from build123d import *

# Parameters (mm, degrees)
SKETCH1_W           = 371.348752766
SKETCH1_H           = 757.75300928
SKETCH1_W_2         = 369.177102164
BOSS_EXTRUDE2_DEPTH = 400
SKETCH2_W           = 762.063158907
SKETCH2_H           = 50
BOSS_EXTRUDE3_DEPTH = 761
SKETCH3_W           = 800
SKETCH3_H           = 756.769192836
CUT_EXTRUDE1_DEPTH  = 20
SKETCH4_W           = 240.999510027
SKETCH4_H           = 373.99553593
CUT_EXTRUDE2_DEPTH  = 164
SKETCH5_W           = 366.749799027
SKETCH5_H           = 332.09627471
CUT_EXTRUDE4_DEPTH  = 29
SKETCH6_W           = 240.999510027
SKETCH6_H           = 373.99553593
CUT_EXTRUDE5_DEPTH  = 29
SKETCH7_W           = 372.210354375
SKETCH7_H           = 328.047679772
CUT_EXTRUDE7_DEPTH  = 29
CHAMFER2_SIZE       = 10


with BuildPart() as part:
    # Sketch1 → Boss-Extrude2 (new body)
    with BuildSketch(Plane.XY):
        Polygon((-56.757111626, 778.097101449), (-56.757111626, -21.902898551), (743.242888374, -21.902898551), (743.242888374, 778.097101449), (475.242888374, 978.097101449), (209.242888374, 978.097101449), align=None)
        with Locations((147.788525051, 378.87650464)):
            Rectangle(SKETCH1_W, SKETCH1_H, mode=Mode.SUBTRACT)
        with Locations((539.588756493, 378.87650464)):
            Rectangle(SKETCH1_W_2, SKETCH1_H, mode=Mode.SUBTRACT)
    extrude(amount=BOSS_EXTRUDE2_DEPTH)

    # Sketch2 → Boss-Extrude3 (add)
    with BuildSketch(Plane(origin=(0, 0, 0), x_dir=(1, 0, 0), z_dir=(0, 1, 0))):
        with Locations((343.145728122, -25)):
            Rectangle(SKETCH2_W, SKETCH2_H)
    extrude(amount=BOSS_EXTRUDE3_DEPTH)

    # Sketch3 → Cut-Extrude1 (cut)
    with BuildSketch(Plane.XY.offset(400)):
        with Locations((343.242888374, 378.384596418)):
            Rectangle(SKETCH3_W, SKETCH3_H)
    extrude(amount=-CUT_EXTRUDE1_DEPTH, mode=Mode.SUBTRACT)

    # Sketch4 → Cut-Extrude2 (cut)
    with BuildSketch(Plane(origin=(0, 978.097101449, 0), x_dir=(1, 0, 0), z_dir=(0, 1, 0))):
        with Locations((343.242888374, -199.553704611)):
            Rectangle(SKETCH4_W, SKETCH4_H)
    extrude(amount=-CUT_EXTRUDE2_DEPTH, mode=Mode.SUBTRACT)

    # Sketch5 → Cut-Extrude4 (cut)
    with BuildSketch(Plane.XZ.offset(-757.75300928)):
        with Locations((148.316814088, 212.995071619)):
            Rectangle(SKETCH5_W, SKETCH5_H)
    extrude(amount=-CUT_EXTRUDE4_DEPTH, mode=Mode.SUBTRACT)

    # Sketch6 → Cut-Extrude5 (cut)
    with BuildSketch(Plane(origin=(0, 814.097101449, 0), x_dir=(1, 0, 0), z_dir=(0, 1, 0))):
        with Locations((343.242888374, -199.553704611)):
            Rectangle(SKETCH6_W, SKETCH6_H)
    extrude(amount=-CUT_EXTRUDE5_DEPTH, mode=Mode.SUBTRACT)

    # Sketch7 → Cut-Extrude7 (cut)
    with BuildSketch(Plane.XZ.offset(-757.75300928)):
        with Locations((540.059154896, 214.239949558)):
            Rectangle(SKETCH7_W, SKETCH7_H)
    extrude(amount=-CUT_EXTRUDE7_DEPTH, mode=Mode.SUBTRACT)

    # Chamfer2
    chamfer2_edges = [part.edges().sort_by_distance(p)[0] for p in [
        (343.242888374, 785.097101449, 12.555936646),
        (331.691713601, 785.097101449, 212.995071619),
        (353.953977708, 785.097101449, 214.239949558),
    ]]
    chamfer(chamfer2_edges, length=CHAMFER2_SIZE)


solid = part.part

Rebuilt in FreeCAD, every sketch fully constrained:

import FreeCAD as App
import Part
import Sketcher


def edges_at(feature, points):
    """Names of the edges that pass closest to the given points."""
    edges = feature.Shape.Edges
    near = lambda p: min(range(len(edges)), key=lambda i: edges[i].distToShape(Part.Vertex(*p))[0])
    return sorted({f"Edge{near(p) + 1}" for p in points})

doc = App.newDocument("Part")
params = doc.addObject("Spreadsheet::Sheet", "Params")
for row, (alias, value) in enumerate([
    ("sketch1_width", "800 mm"),
    ("sketch1_width2", "266 mm"),
    ("pad1_length", "400 mm"),
    ("sketch2_height", "50 mm"),
    ("pad2_length", "761 mm"),
    ("sketch3_width", "800 mm"),
    ("pocket1_length", "20 mm"),
    ("pocket2_length", "164 mm"),
    ("pocket3_length", "29 mm"),
    ("pocket4_length", "29 mm"),
    ("pocket5_length", "29 mm"),
    ("chamfer_size", "10 mm"),
], start=1):
    params.set(f"A{row}", alias)
    params.set(f"B{row}", "=" + value)
    params.setAlias(f"B{row}", alias)

body = doc.addObject("PartDesign::Body", "Body")

# Sketch on XY plane
sketch1 = doc.addObject("Sketcher::SketchObject", "Sketch")
body.addObject(sketch1)
sketch1.AttachmentSupport = (doc.XY_Plane, [""])
sketch1.MapMode = "FlatFace"
sketch1.addGeometry(Part.LineSegment(App.Vector(-56.757112, 778.097101, 0), App.Vector(-56.757112, -21.902899, 0)), False)
sketch1.addGeometry(Part.LineSegment(App.Vector(-56.757112, -21.902899, 0), App.Vector(743.242888, -21.902899, 0)), False)
sketch1.addGeometry(Part.LineSegment(App.Vector(743.242888, -21.902899, 0), App.Vector(743.242888, 778.097101, 0)), False)
sketch1.addGeometry(Part.LineSegment(App.Vector(743.242888, 778.097101, 0), App.Vector(475.242888, 978.097101, 0)), False)
sketch1.addGeometry(Part.LineSegment(App.Vector(475.242888, 978.097101, 0), App.Vector(209.242888, 978.097101, 0)), False)
sketch1.addGeometry(Part.LineSegment(App.Vector(209.242888, 978.097101, 0), App.Vector(-56.757112, 778.097101, 0)), False)
sketch1.addGeometry(Part.LineSegment(App.Vector(333.462901, 0, 0), App.Vector(-37.885851, 0, 0)), False)
sketch1.addGeometry(Part.LineSegment(App.Vector(-37.885851, 0, 0), App.Vector(-37.885851, 757.753009, 0)), False)
sketch1.addGeometry(Part.LineSegment(App.Vector(-37.885851, 757.753009, 0), App.Vector(333.462901, 757.753009, 0)), False)
sketch1.addGeometry(Part.LineSegment(App.Vector(333.462901, 757.753009, 0), App.Vector(333.462901, 0, 0)), False)
sketch1.addGeometry(Part.LineSegment(App.Vector(724.177308, 0, 0), App.Vector(355.000205, 0, 0)), False)
sketch1.addGeometry(Part.LineSegment(App.Vector(355.000205, 0, 0), App.Vector(355.000205, 757.753009, 0)), False)
sketch1.addGeometry(Part.LineSegment(App.Vector(355.000205, 757.753009, 0), App.Vector(724.177308, 757.753009, 0)), False)
sketch1.addGeometry(Part.LineSegment(App.Vector(724.177308, 757.753009, 0), App.Vector(724.177308, 0, 0)), False)
sketch1.addConstraint(Sketcher.Constraint("Coincident", 0, 2, 1, 1))
sketch1.addConstraint(Sketcher.Constraint("Coincident", 1, 2, 2, 1))
sketch1.addConstraint(Sketcher.Constraint("Coincident", 2, 2, 3, 1))
sketch1.addConstraint(Sketcher.Constraint("Coincident", 3, 2, 4, 1))
sketch1.addConstraint(Sketcher.Constraint("Coincident", 4, 2, 5, 1))
sketch1.addConstraint(Sketcher.Constraint("Coincident", 5, 2, 0, 1))
sketch1.addConstraint(Sketcher.Constraint("Coincident", 6, 2, 7, 1))
sketch1.addConstraint(Sketcher.Constraint("Coincident", 7, 2, 8, 1))
sketch1.addConstraint(Sketcher.Constraint("Coincident", 8, 2, 9, 1))
sketch1.addConstraint(Sketcher.Constraint("Coincident", 9, 2, 6, 1))
sketch1.addConstraint(Sketcher.Constraint("Coincident", 10, 2, 11, 1))
sketch1.addConstraint(Sketcher.Constraint("Coincident", 11, 2, 12, 1))
sketch1.addConstraint(Sketcher.Constraint("Coincident", 12, 2, 13, 1))
sketch1.addConstraint(Sketcher.Constraint("Coincident", 13, 2, 10, 1))
sketch1.addConstraint(Sketcher.Constraint("Vertical", 0))
sketch1.addConstraint(Sketcher.Constraint("Horizontal", 1))
sketch1.addConstraint(Sketcher.Constraint("Vertical", 2))
sketch1.addConstraint(Sketcher.Constraint("Horizontal", 4))
sketch1.addConstraint(Sketcher.Constraint("Horizontal", 6))
sketch1.addConstraint(Sketcher.Constraint("Vertical", 7))
sketch1.addConstraint(Sketcher.Constraint("Horizontal", 8))
sketch1.addConstraint(Sketcher.Constraint("Vertical", 9))
sketch1.addConstraint(Sketcher.Constraint("Horizontal", 10))
sketch1.addConstraint(Sketcher.Constraint("Vertical", 11))
sketch1.addConstraint(Sketcher.Constraint("Horizontal", 12))
sketch1.addConstraint(Sketcher.Constraint("Vertical", 13))
sketch1.addConstraint(Sketcher.Constraint("PointOnObject", 6, 2, -1))
sketch1.addConstraint(Sketcher.Constraint("PointOnObject", 10, 2, -1))
sketch1.addConstraint(Sketcher.Constraint("Horizontal", 2, 2, 5, 2))
sketch1.addConstraint(Sketcher.Constraint("Horizontal", 8, 2, 11, 2))
sketch1.addConstraint(Sketcher.Constraint("Equal", 1, 0))
sketch1.addConstraint(Sketcher.Constraint("DistanceX", 1, 1, 1, 2, 800.0))
sketch1.addConstraint(Sketcher.Constraint("DistanceX", 4, 2, 4, 1, 266.0))
sketch1.addConstraint(Sketcher.Constraint("DistanceX", 3, 2, 2, 2, 268.0))
sketch1.addConstraint(Sketcher.Constraint("DistanceY", 2, 2, 3, 2, 200.0))
sketch1.addConstraint(Sketcher.Constraint("DistanceY", 7, 1, 7, 2, 757.753009))
sketch1.addConstraint(Sketcher.Constraint("DistanceY", 0, 2, -1, 1, 21.902899))
sketch1.addConstraint(Sketcher.Constraint("DistanceX", -1, 1, 8, 2, 333.462901))
sketch1.addConstraint(Sketcher.Constraint("DistanceX", 6, 2, 6, 1, 371.348753))
sketch1.addConstraint(Sketcher.Constraint("DistanceX", 10, 2, 10, 1, 369.177102))
sketch1.addConstraint(Sketcher.Constraint("DistanceX", 0, 2, -1, 1, 56.757112))
sketch1.addConstraint(Sketcher.Constraint("DistanceX", 12, 2, 2, 2, 19.065581))
sketch1.setExpression("Constraints[31]", "Params.sketch1_width")
sketch1.setExpression("Constraints[32]", "Params.sketch1_width2")
pad1 = doc.addObject("PartDesign::Pad", "Pad")
body.addObject(pad1)
pad1.Profile = sketch1
pad1.setExpression("Length", "Params.pad1_length")

# Sketch on XZ plane
sketch2 = doc.addObject("Sketcher::SketchObject", "Sketch001")
body.addObject(sketch2)
sketch2.AttachmentSupport = (doc.XZ_Plane, [""])
sketch2.MapMode = "FlatFace"
sketch2.addGeometry(Part.LineSegment(App.Vector(-37.885851, 0, 0), App.Vector(-37.885851, 50, 0)), False)
sketch2.addGeometry(Part.LineSegment(App.Vector(-37.885851, 50, 0), App.Vector(724.177308, 50, 0)), False)
sketch2.addGeometry(Part.LineSegment(App.Vector(724.177308, 50, 0), App.Vector(724.177308, 0, 0)), False)
sketch2.addGeometry(Part.LineSegment(App.Vector(724.177308, 0, 0), App.Vector(-37.885851, 0, 0)), False)
sketch2.addConstraint(Sketcher.Constraint("Coincident", 0, 2, 1, 1))
sketch2.addConstraint(Sketcher.Constraint("Coincident", 1, 2, 2, 1))
sketch2.addConstraint(Sketcher.Constraint("Coincident", 2, 2, 3, 1))
sketch2.addConstraint(Sketcher.Constraint("Coincident", 3, 2, 0, 1))
sketch2.addConstraint(Sketcher.Constraint("Vertical", 0))
sketch2.addConstraint(Sketcher.Constraint("Horizontal", 1))
sketch2.addConstraint(Sketcher.Constraint("Vertical", 2))
sketch2.addConstraint(Sketcher.Constraint("Horizontal", 3))
sketch2.addConstraint(Sketcher.Constraint("PointOnObject", 2, 2, -1))
sketch2.addConstraint(Sketcher.Constraint("DistanceY", 0, 1, 0, 2, 50.0))
sketch2.addConstraint(Sketcher.Constraint("DistanceX", 1, 1, 1, 2, 762.063159))
sketch2.addConstraint(Sketcher.Constraint("DistanceX", 0, 2, -1, 1, 37.885851))
sketch2.setExpression("Constraints[9]", "Params.sketch2_height")
pad2 = doc.addObject("PartDesign::Pad", "Pad001")
body.addObject(pad2)
pad2.Profile = sketch2
pad2.setExpression("Length", "Params.pad2_length")
pad2.Reversed = True

# Sketch on XY plane
sketch3 = doc.addObject("Sketcher::SketchObject", "Sketch002")
body.addObject(sketch3)
sketch3.AttachmentSupport = (doc.XY_Plane, [""])
sketch3.MapMode = "FlatFace"
sketch3.AttachmentOffset = App.Placement(App.Vector(0, 0, 400), App.Rotation())
sketch3.addGeometry(Part.LineSegment(App.Vector(-56.757112, 756.769193, 0), App.Vector(-56.757112, 0, 0)), False)
sketch3.addGeometry(Part.LineSegment(App.Vector(-56.757112, 0, 0), App.Vector(743.242888, 0, 0)), False)
sketch3.addGeometry(Part.LineSegment(App.Vector(743.242888, 0, 0), App.Vector(743.242888, 756.769193, 0)), False)
sketch3.addGeometry(Part.LineSegment(App.Vector(743.242888, 756.769193, 0), App.Vector(-56.757112, 756.769193, 0)), False)
sketch3.addConstraint(Sketcher.Constraint("Coincident", 0, 2, 1, 1))
sketch3.addConstraint(Sketcher.Constraint("Coincident", 1, 2, 2, 1))
sketch3.addConstraint(Sketcher.Constraint("Coincident", 2, 2, 3, 1))
sketch3.addConstraint(Sketcher.Constraint("Coincident", 3, 2, 0, 1))
sketch3.addConstraint(Sketcher.Constraint("Vertical", 0))
sketch3.addConstraint(Sketcher.Constraint("Horizontal", 1))
sketch3.addConstraint(Sketcher.Constraint("Vertical", 2))
sketch3.addConstraint(Sketcher.Constraint("Horizontal", 3))
sketch3.addConstraint(Sketcher.Constraint("PointOnObject", 0, 2, -1))
sketch3.addConstraint(Sketcher.Constraint("DistanceX", 1, 1, 1, 2, 800.0))
sketch3.addConstraint(Sketcher.Constraint("DistanceY", 0, 2, 0, 1, 756.769193))
sketch3.addConstraint(Sketcher.Constraint("DistanceX", 0, 2, -1, 1, 56.757112))
sketch3.setExpression("Constraints[9]", "Params.sketch3_width")
pocket1 = doc.addObject("PartDesign::Pocket", "Pocket")
body.addObject(pocket1)
pocket1.Profile = sketch3
pocket1.setExpression("Length", "Params.pocket1_length")

# Sketch on XZ plane
sketch4 = doc.addObject("Sketcher::SketchObject", "Sketch003")
body.addObject(sketch4)
sketch4.AttachmentSupport = (doc.XZ_Plane, [""])
sketch4.MapMode = "FlatFace"
sketch4.AttachmentOffset = App.Placement(App.Vector(0, 0, -978.097101), App.Rotation())
sketch4.addGeometry(Part.LineSegment(App.Vector(222.743133, 12.555937, 0), App.Vector(222.743133, 386.551473, 0)), False)
sketch4.addGeometry(Part.LineSegment(App.Vector(222.743133, 386.551473, 0), App.Vector(463.742643, 386.551473, 0)), False)
sketch4.addGeometry(Part.LineSegment(App.Vector(463.742643, 386.551473, 0), App.Vector(463.742643, 12.555937, 0)), False)
sketch4.addGeometry(Part.LineSegment(App.Vector(463.742643, 12.555937, 0), App.Vector(222.743133, 12.555937, 0)), False)
sketch4.addConstraint(Sketcher.Constraint("Coincident", 0, 2, 1, 1))
sketch4.addConstraint(Sketcher.Constraint("Coincident", 1, 2, 2, 1))
sketch4.addConstraint(Sketcher.Constraint("Coincident", 2, 2, 3, 1))
sketch4.addConstraint(Sketcher.Constraint("Coincident", 3, 2, 0, 1))
sketch4.addConstraint(Sketcher.Constraint("Vertical", 0))
sketch4.addConstraint(Sketcher.Constraint("Horizontal", 1))
sketch4.addConstraint(Sketcher.Constraint("Vertical", 2))
sketch4.addConstraint(Sketcher.Constraint("Horizontal", 3))
sketch4.addConstraint(Sketcher.Constraint("DistanceX", 1, 1, 1, 2, 240.99951))
sketch4.addConstraint(Sketcher.Constraint("DistanceY", 0, 1, 0, 2, 373.995536))
sketch4.addConstraint(Sketcher.Constraint("DistanceX", -1, 1, 0, 2, 222.743133))
sketch4.addConstraint(Sketcher.Constraint("DistanceY", -1, 1, 0, 2, 386.551473))
pocket2 = doc.addObject("PartDesign::Pocket", "Pocket001")
body.addObject(pocket2)
pocket2.Profile = sketch4
pocket2.setExpression("Length", "Params.pocket2_length")
pocket2.Reversed = True

# Sketch on XZ plane
sketch5 = doc.addObject("Sketcher::SketchObject", "Sketch004")
body.addObject(sketch5)
sketch5.AttachmentSupport = (doc.XZ_Plane, [""])
sketch5.MapMode = "FlatFace"
sketch5.AttachmentOffset = App.Placement(App.Vector(0, 0, -757.753009), App.Rotation())
sketch5.addGeometry(Part.LineSegment(App.Vector(-35.058085, 379.043209, 0), App.Vector(-35.058085, 46.946934, 0)), False)
sketch5.addGeometry(Part.LineSegment(App.Vector(-35.058085, 46.946934, 0), App.Vector(331.691714, 46.946934, 0)), False)
sketch5.addGeometry(Part.LineSegment(App.Vector(331.691714, 46.946934, 0), App.Vector(331.691714, 379.043209, 0)), False)
sketch5.addGeometry(Part.LineSegment(App.Vector(331.691714, 379.043209, 0), App.Vector(-35.058085, 379.043209, 0)), False)
sketch5.addConstraint(Sketcher.Constraint("Coincident", 0, 2, 1, 1))
sketch5.addConstraint(Sketcher.Constraint("Coincident", 1, 2, 2, 1))
sketch5.addConstraint(Sketcher.Constraint("Coincident", 2, 2, 3, 1))
sketch5.addConstraint(Sketcher.Constraint("Coincident", 3, 2, 0, 1))
sketch5.addConstraint(Sketcher.Constraint("Vertical", 0))
sketch5.addConstraint(Sketcher.Constraint("Horizontal", 1))
sketch5.addConstraint(Sketcher.Constraint("Vertical", 2))
sketch5.addConstraint(Sketcher.Constraint("Horizontal", 3))
sketch5.addConstraint(Sketcher.Constraint("DistanceX", 1, 1, 1, 2, 366.749799))
sketch5.addConstraint(Sketcher.Constraint("DistanceY", 0, 2, 0, 1, 332.096275))
sketch5.addConstraint(Sketcher.Constraint("DistanceY", -1, 1, 2, 2, 379.043209))
sketch5.addConstraint(Sketcher.Constraint("DistanceX", 0, 2, -1, 1, 35.058085))
pocket3 = doc.addObject("PartDesign::Pocket", "Pocket002")
body.addObject(pocket3)
pocket3.Profile = sketch5
pocket3.setExpression("Length", "Params.pocket3_length")

# Sketch on XZ plane
sketch6 = doc.addObject("Sketcher::SketchObject", "Sketch005")
body.addObject(sketch6)
sketch6.AttachmentSupport = (doc.XZ_Plane, [""])
sketch6.MapMode = "FlatFace"
sketch6.AttachmentOffset = App.Placement(App.Vector(0, 0, -814.097101), App.Rotation())
sketch6.addGeometry(Part.LineSegment(App.Vector(222.743133, 12.555937, 0), App.Vector(222.743133, 386.551473, 0)), False)
sketch6.addGeometry(Part.LineSegment(App.Vector(222.743133, 386.551473, 0), App.Vector(463.742643, 386.551473, 0)), False)
sketch6.addGeometry(Part.LineSegment(App.Vector(463.742643, 386.551473, 0), App.Vector(463.742643, 12.555937, 0)), False)
sketch6.addGeometry(Part.LineSegment(App.Vector(463.742643, 12.555937, 0), App.Vector(222.743133, 12.555937, 0)), False)
sketch6.addConstraint(Sketcher.Constraint("Coincident", 0, 2, 1, 1))
sketch6.addConstraint(Sketcher.Constraint("Coincident", 1, 2, 2, 1))
sketch6.addConstraint(Sketcher.Constraint("Coincident", 2, 2, 3, 1))
sketch6.addConstraint(Sketcher.Constraint("Coincident", 3, 2, 0, 1))
sketch6.addConstraint(Sketcher.Constraint("Vertical", 0))
sketch6.addConstraint(Sketcher.Constraint("Horizontal", 1))
sketch6.addConstraint(Sketcher.Constraint("Vertical", 2))
sketch6.addConstraint(Sketcher.Constraint("Horizontal", 3))
sketch6.addConstraint(Sketcher.Constraint("DistanceX", 1, 1, 1, 2, 240.99951))
sketch6.addConstraint(Sketcher.Constraint("DistanceY", 0, 1, 0, 2, 373.995536))
sketch6.addConstraint(Sketcher.Constraint("DistanceX", -1, 1, 0, 2, 222.743133))
sketch6.addConstraint(Sketcher.Constraint("DistanceY", -1, 1, 0, 2, 386.551473))
pocket4 = doc.addObject("PartDesign::Pocket", "Pocket003")
body.addObject(pocket4)
pocket4.Profile = sketch6
pocket4.setExpression("Length", "Params.pocket4_length")
pocket4.Reversed = True

# Sketch on XZ plane
sketch7 = doc.addObject("Sketcher::SketchObject", "Sketch006")
body.addObject(sketch7)
sketch7.AttachmentSupport = (doc.XZ_Plane, [""])
sketch7.MapMode = "FlatFace"
sketch7.AttachmentOffset = App.Placement(App.Vector(0, 0, -757.753009), App.Rotation())
sketch7.addGeometry(Part.LineSegment(App.Vector(353.953978, 378.263789, 0), App.Vector(353.953978, 50.21611, 0)), False)
sketch7.addGeometry(Part.LineSegment(App.Vector(353.953978, 50.21611, 0), App.Vector(726.164332, 50.21611, 0)), False)
sketch7.addGeometry(Part.LineSegment(App.Vector(726.164332, 50.21611, 0), App.Vector(726.164332, 378.263789, 0)), False)
sketch7.addGeometry(Part.LineSegment(App.Vector(726.164332, 378.263789, 0), App.Vector(353.953978, 378.263789, 0)), False)
sketch7.addConstraint(Sketcher.Constraint("Coincident", 0, 2, 1, 1))
sketch7.addConstraint(Sketcher.Constraint("Coincident", 1, 2, 2, 1))
sketch7.addConstraint(Sketcher.Constraint("Coincident", 2, 2, 3, 1))
sketch7.addConstraint(Sketcher.Constraint("Coincident", 3, 2, 0, 1))
sketch7.addConstraint(Sketcher.Constraint("Vertical", 0))
sketch7.addConstraint(Sketcher.Constraint("Horizontal", 1))
sketch7.addConstraint(Sketcher.Constraint("Vertical", 2))
sketch7.addConstraint(Sketcher.Constraint("Horizontal", 3))
sketch7.addConstraint(Sketcher.Constraint("DistanceY", 0, 2, 0, 1, 328.04768))
sketch7.addConstraint(Sketcher.Constraint("DistanceX", 1, 1, 1, 2, 372.210354))
sketch7.addConstraint(Sketcher.Constraint("DistanceY", -1, 1, 0, 2, 50.21611))
sketch7.addConstraint(Sketcher.Constraint("DistanceX", -1, 1, 0, 2, 353.953978))
pocket5 = doc.addObject("PartDesign::Pocket", "Pocket004")
body.addObject(pocket5)
pocket5.Profile = sketch7
pocket5.setExpression("Length", "Params.pocket5_length")
doc.recompute()

chamfer = doc.addObject("PartDesign::Chamfer", "Chamfer")
body.addObject(chamfer)
chamfer.Base = (pocket5, edges_at(pocket5, [(343.243, 785.097, 12.556), (331.692, 785.097, 212.995), (353.954, 785.097, 214.24)]))
chamfer.setExpression("Size", "Params.chamfer_size")

doc.recompute()
